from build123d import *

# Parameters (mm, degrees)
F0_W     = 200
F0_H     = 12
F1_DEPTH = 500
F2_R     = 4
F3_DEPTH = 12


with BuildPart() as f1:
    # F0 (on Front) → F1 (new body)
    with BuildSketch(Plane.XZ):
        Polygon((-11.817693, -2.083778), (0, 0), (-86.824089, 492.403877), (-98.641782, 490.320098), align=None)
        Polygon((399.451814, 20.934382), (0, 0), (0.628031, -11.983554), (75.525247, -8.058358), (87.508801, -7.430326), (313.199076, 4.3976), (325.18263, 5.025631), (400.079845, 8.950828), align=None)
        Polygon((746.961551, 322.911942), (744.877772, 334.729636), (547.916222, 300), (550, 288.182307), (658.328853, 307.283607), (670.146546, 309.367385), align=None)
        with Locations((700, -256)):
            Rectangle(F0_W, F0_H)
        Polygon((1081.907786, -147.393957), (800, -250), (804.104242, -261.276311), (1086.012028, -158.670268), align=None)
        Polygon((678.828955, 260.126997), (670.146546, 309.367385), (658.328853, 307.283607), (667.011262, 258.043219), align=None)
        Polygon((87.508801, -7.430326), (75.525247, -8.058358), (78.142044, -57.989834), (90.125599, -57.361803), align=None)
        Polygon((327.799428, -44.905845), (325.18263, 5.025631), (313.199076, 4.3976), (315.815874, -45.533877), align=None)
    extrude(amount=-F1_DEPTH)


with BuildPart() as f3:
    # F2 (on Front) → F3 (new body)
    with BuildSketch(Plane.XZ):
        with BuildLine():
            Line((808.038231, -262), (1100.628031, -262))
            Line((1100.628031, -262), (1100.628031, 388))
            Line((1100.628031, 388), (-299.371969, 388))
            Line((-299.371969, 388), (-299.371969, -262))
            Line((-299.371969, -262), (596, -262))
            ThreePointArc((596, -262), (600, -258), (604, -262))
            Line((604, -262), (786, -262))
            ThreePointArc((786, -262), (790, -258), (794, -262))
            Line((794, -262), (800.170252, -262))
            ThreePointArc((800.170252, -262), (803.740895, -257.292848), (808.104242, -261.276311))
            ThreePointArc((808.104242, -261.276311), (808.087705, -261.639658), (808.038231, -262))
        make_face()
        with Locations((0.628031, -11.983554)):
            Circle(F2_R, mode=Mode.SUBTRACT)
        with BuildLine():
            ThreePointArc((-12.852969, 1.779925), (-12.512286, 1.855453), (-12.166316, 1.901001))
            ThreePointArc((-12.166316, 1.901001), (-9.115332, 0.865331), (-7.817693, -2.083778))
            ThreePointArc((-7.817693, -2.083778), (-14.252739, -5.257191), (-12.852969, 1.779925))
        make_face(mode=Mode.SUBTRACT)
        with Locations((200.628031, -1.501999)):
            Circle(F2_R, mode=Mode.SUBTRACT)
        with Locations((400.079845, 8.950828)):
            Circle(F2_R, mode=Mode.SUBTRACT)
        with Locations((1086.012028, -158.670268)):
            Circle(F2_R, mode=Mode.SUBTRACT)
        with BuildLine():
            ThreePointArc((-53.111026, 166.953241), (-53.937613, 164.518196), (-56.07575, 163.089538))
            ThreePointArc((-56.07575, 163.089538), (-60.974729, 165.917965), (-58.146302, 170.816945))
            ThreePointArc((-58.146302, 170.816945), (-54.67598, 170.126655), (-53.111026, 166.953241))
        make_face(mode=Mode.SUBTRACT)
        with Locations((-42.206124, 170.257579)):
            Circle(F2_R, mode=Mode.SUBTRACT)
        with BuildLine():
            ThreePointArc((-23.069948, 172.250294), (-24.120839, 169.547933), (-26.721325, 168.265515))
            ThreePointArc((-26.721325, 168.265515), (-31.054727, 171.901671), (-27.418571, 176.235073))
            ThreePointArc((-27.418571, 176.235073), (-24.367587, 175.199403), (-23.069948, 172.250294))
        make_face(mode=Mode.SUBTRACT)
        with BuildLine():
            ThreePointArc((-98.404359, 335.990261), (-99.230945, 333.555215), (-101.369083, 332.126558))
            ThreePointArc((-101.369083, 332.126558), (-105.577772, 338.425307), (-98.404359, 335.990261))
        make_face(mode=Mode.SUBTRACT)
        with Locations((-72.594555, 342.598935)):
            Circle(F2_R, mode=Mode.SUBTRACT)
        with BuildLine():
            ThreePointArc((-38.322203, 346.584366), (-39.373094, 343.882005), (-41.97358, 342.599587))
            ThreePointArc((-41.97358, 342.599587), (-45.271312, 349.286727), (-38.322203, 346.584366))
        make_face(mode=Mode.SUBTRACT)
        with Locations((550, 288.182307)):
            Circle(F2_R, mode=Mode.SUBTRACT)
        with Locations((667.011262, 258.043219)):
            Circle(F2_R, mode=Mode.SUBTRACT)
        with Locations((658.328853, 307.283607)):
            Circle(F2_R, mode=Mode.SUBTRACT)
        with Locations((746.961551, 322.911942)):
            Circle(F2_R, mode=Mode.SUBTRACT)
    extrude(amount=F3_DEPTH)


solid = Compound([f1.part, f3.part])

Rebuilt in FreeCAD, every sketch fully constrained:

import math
import FreeCAD as App
import Part
import Sketcher
Q = App.Units.Quantity

doc = App.newDocument("Part")
body = doc.addObject("PartDesign::Body", "Body")
body.AllowCompound = True

sketch1 = body.newObject("Sketcher::SketchObject", "Sketch")
sketch1.AttachmentSupport = (doc.getObject("XZ_Plane"), [""])
sketch1.MapMode = "FlatFace"
sketch1.addGeometry([
    Part.LineSegment(App.Vector(-11.817693, -2.083778, 0), App.Vector(0, 0, 0)),
    Part.LineSegment(App.Vector(0, 0, 0), App.Vector(-86.824089, 492.403877, 0)),
    Part.LineSegment(App.Vector(-86.824089, 492.403877, 0), App.Vector(-98.641782, 490.320098, 0)),
    Part.LineSegment(App.Vector(-98.641782, 490.320098, 0), App.Vector(-11.817693, -2.083778, 0)),
    Part.LineSegment(App.Vector(399.451814, 20.934382, 0), App.Vector(0, 0, 0)),
    Part.LineSegment(App.Vector(0, 0, 0), App.Vector(0.628031, -11.983554, 0)),
    Part.LineSegment(App.Vector(0.628031, -11.983554, 0), App.Vector(75.525247, -8.058358, 0)),
    Part.LineSegment(App.Vector(75.525247, -8.058358, 0), App.Vector(78.142044, -57.989834, 0)),
    Part.LineSegment(App.Vector(78.142044, -57.989834, 0), App.Vector(90.125599, -57.361803, 0)),
    Part.LineSegment(App.Vector(90.125599, -57.361803, 0), App.Vector(87.508801, -7.430326, 0)),
    Part.LineSegment(App.Vector(87.508801, -7.430326, 0), App.Vector(313.199076, 4.3976, 0)),
    Part.LineSegment(App.Vector(313.199076, 4.3976, 0), App.Vector(315.815874, -45.533877, 0)),
    Part.LineSegment(App.Vector(315.815874, -45.533877, 0), App.Vector(327.799428, -44.905845, 0)),
    Part.LineSegment(App.Vector(327.799428, -44.905845, 0), App.Vector(325.18263, 5.025631, 0)),
    Part.LineSegment(App.Vector(325.18263, 5.025631, 0), App.Vector(400.079845, 8.950828, 0)),
    Part.LineSegment(App.Vector(400.079845, 8.950828, 0), App.Vector(399.451814, 20.934382, 0)),
    Part.LineSegment(App.Vector(746.961551, 322.911942, 0), App.Vector(744.877772, 334.729636, 0)),
    Part.LineSegment(App.Vector(744.877772, 334.729636, 0), App.Vector(547.916222, 300, 0)),
    Part.LineSegment(App.Vector(547.916222, 300, 0), App.Vector(550, 288.182307, 0)),
    Part.LineSegment(App.Vector(550, 288.182307, 0), App.Vector(658.328853, 307.283607, 0)),
    Part.LineSegment(App.Vector(658.328853, 307.283607, 0), App.Vector(667.011262, 258.043219, 0)),
    Part.LineSegment(App.Vector(667.011262, 258.043219, 0), App.Vector(678.828955, 260.126997, 0)),
    Part.LineSegment(App.Vector(678.828955, 260.126997, 0), App.Vector(670.146546, 309.367385, 0)),
    Part.LineSegment(App.Vector(670.146546, 309.367385, 0), App.Vector(746.961551, 322.911942, 0)),
    Part.LineSegment(App.Vector(600, -250, 0), App.Vector(600, -262, 0)),
    Part.LineSegment(App.Vector(600, -262, 0), App.Vector(800, -262, 0)),
    Part.LineSegment(App.Vector(800, -262, 0), App.Vector(800, -250, 0)),
    Part.LineSegment(App.Vector(800, -250, 0), App.Vector(600, -250, 0)),
    Part.LineSegment(App.Vector(1081.907786, -147.393957, 0), App.Vector(800, -250, 0)),
    Part.LineSegment(App.Vector(800, -250, 0), App.Vector(804.104242, -261.276311, 0)),
    Part.LineSegment(App.Vector(804.104242, -261.276311, 0), App.Vector(1086.012028, -158.670268, 0)),
    Part.LineSegment(App.Vector(1086.012028, -158.670268, 0), App.Vector(1081.907786, -147.393957, 0)),
], False)
sketch1.addConstraint([
    Sketcher.Constraint("Coincident", 0, 2, 1, 1),
    Sketcher.Constraint("Coincident", 1, 2, 2, 1),
    Sketcher.Constraint("Coincident", 2, 2, 3, 1),
    Sketcher.Constraint("Coincident", 3, 2, 0, 1),
    Sketcher.Constraint("Coincident", 4, 2, 5, 1),
    Sketcher.Constraint("Coincident", 5, 2, 6, 1),
    Sketcher.Constraint("Coincident", 6, 2, 7, 1),
    Sketcher.Constraint("Coincident", 7, 2, 8, 1),
    Sketcher.Constraint("Coincident", 8, 2, 9, 1),
    Sketcher.Constraint("Coincident", 9, 2, 10, 1),
    Sketcher.Constraint("Coincident", 10, 2, 11, 1),
    Sketcher.Constraint("Coincident", 11, 2, 12, 1),
    Sketcher.Constraint("Coincident", 12, 2, 13, 1),
    Sketcher.Constraint("Coincident", 13, 2, 14, 1),
    Sketcher.Constraint("Coincident", 14, 2, 15, 1),
    Sketcher.Constraint("Coincident", 15, 2, 4, 1),
    Sketcher.Constraint("Coincident", 16, 2, 17, 1),
    Sketcher.Constraint("Coincident", 17, 2, 18, 1),
    Sketcher.Constraint("Coincident", 18, 2, 19, 1),
    Sketcher.Constraint("Coincident", 19, 2, 20, 1),
    Sketcher.Constraint("Coincident", 20, 2, 21, 1),
    Sketcher.Constraint("Coincident", 21, 2, 22, 1),
    Sketcher.Constraint("Coincident", 22, 2, 23, 1),
    Sketcher.Constraint("Coincident", 23, 2, 16, 1),
    Sketcher.Constraint("Coincident", 24, 2, 25, 1),
    Sketcher.Constraint("Coincident", 25, 2, 26, 1),
    Sketcher.Constraint("Coincident", 26, 2, 27, 1),
    Sketcher.Constraint("Coincident", 27, 2, 24, 1),
    Sketcher.Constraint("Coincident", 28, 2, 29, 1),
    Sketcher.Constraint("Coincident", 29, 2, 30, 1),
    Sketcher.Constraint("Coincident", 30, 2, 31, 1),
    Sketcher.Constraint("Coincident", 31, 2, 28, 1),
    Sketcher.Constraint("Vertical", 24),
    Sketcher.Constraint("Horizontal", 25),
    Sketcher.Constraint("Vertical", 26),
    Sketcher.Constraint("Horizontal", 27),
    Sketcher.Constraint("Coincident", 0, 2, -1, 1),
    Sketcher.Constraint("Coincident", 4, 2, -1, 1),
    Sketcher.Constraint("Coincident", 28, 2, 26, 2),
    Sketcher.Constraint("Perpendicular", 0, 1),
    Sketcher.Constraint("Perpendicular", 1, 2),
    Sketcher.Constraint("Perpendicular", 2, 3),
    Sketcher.Constraint("Perpendicular", 4, 5),
    Sketcher.Constraint("Perpendicular", 5, 6),
    Sketcher.Constraint("Perpendicular", 6, 7),
    Sketcher.Constraint("Perpendicular", 7, 8),
    Sketcher.Constraint("Perpendicular", 8, 9),
    Sketcher.Constraint("Perpendicular", 9, 10),
    Sketcher.Constraint("Perpendicular", 10, 11),
    Sketcher.Constraint("Perpendicular", 11, 12),
    Sketcher.Constraint("Perpendicular", 12, 13),
    Sketcher.Constraint("Perpendicular", 13, 14),
    Sketcher.Constraint("Perpendicular", 14, 15),
    Sketcher.Constraint("Parallel", 3, 16),
    Sketcher.Constraint("Perpendicular", 16, 17),
    Sketcher.Constraint("Perpendicular", 17, 18),
    Sketcher.Constraint("Perpendicular", 18, 19),
    Sketcher.Constraint("Perpendicular", 19, 20),
    Sketcher.Constraint("Perpendicular", 20, 21),
    Sketcher.Constraint("Perpendicular", 21, 22),
    Sketcher.Constraint("Perpendicular", 22, 23),
    Sketcher.Constraint("Perpendicular", 28, 29),
    Sketcher.Constraint("Perpendicular", 29, 30),
    Sketcher.Constraint("Perpendicular", 30, 31),
    Sketcher.Constraint("Equal", 2, 5),
    Sketcher.Constraint("Equal", 5, 8),
    Sketcher.Constraint("Equal", 7, 9),
    Sketcher.Constraint("Equal", 9, 11),
    Sketcher.Constraint("Equal", 8, 12),
    Sketcher.Constraint("Equal", 11, 13),
    Sketcher.Constraint("Equal", 6, 14),
    Sketcher.Constraint("Equal", 15, 16),
    Sketcher.Constraint("Equal", 16, 18),
    Sketcher.Constraint("Equal", 13, 20),
    Sketcher.Constraint("Equal", 18, 21),
    Sketcher.Constraint("Equal", 21, 29),
    Sketcher.Constraint("DistanceX", 25, 1, 25, 2, 200.0),
    Sketcher.Constraint("DistanceY", 24, 2, 24, 1, 12.0),
    Sketcher.Constraint("Angle", 0, Q("9.999999 deg")),
    Sketcher.Constraint("Angle", 4, Q("-177 deg")),
    Sketcher.Constraint("Angle", 28, Q("-160 deg")),
    Sketcher.Constraint("Distance", 0, 12.0),
    Sketcher.Constraint("Distance", 1, 500.000001),
    Sketcher.Constraint("Distance", 4, 400.0),
    Sketcher.Constraint("Distance", 6, 75.000001),
    Sketcher.Constraint("Distance", 7, 49.999999),
    Sketcher.Constraint("Distance", 17, 199.999999),
    Sketcher.Constraint("Distance", 19, 110.0),
    Sketcher.Constraint("Distance", 28, 300.0),
    Sketcher.Constraint("DistanceY", -1, 1, 17, 2, 300.0),
    Sketcher.Constraint("DistanceX", -1, 1, 18, 2, 550.0),
    Sketcher.Constraint("DistanceX", -1, 1, 24, 2, 600.0),
    Sketcher.Constraint("DistanceY", 24, 2, -1, 1, 262.0),
])
pad1 = body.newObject("PartDesign::Pad", "Pad")
pad1.Profile = sketch1
pad1.Length = 500
pad1.Reversed = True
body2 = doc.addObject("PartDesign::Body", "Body001")

sketch2 = body2.newObject("Sketcher::SketchObject", "Sketch001")
sketch2.AttachmentSupport = (doc.getObject("XZ_Plane001"), [""])
sketch2.MapMode = "FlatFace"
sketch2.addGeometry([
    Part.LineSegment(App.Vector(808.038231, -262, 0), App.Vector(1100.628031, -262, 0)),
    Part.LineSegment(App.Vector(1100.628031, -262, 0), App.Vector(1100.628031, 388, 0)),
    Part.LineSegment(App.Vector(1100.628031, 388, 0), App.Vector(-299.371969, 388, 0)),
    Part.LineSegment(App.Vector(-299.371969, 388, 0), App.Vector(-299.371969, -262, 0)),
    Part.LineSegment(App.Vector(-299.371969, -262, 0), App.Vector(596, -262, 0)),
    Part.ArcOfCircle(Part.Circle(App.Vector(600, -262, 0), App.Vector(0, 0, 1), 4), math.radians(0), math.radians(180)),
    Part.LineSegment(App.Vector(604, -262, 0), App.Vector(786, -262, 0)),
    Part.ArcOfCircle(Part.Circle(App.Vector(790, -262, 0), App.Vector(0, 0, 1), 4), math.radians(0), math.radians(180)),
    Part.LineSegment(App.Vector(794, -262, 0), App.Vector(800.170252, -262, 0)),
    Part.ArcOfCircle(Part.Circle(App.Vector(804.104242, -261.276311, 0), App.Vector(0, 0, 1), 4), math.radians(0.000005), math.radians(190.423477)),
    Part.ArcOfCircle(Part.Circle(App.Vector(804.10427, -261.27631, 0), App.Vector(0, 0, 1), 3.999972), math.radians(-10.423567), math.radians(-0.000011)),
    Part.Circle(App.Vector(0.628031, -11.983554, 0), App.Vector(0, 0, 1), 4),
    Part.ArcOfCircle(Part.Circle(App.Vector(-11.817693, -2.083778, 0), App.Vector(0, 0, 1), 4), math.radians(105), math.radians(360.000002)),
    Part.ArcOfCircle(Part.Circle(App.Vector(-11.817695, -2.08375, 0), App.Vector(0, 0, 1), 3.999973), math.radians(95.000011), math.radians(105.000078)),
    Part.ArcOfCircle(Part.Circle(App.Vector(-11.817694, -2.083778, 0), App.Vector(0, 0, 1), 4.000001), math.radians(0.000007), math.radians(94.999991)),
    Part.Circle(App.Vector(200.628031, -1.501999, 0), App.Vector(0, 0, 1), 4),
    Part.Circle(App.Vector(400.079845, 8.950828, 0), App.Vector(0, 0, 1), 4),
    Part.Circle(App.Vector(1086.012028, -158.670268, 0), App.Vector(0, 0, 1), 4),
    Part.ArcOfCircle(Part.Circle(App.Vector(-57.111026, 166.953242, 0), App.Vector(0, 0, 1), 4), math.radians(-0.000014), math.radians(105.000002)),
    Part.ArcOfCircle(Part.Circle(App.Vector(-57.111028, 166.953243, 0), App.Vector(0, 0, 1), 4.000002), math.radians(-74.999981), math.radians(-0.000026)),
    Part.ArcOfCircle(Part.Circle(App.Vector(-57.111026, 166.953242, 0), App.Vector(0, 0, 1), 4), math.radians(105.000002), math.radians(284.999992)),
    Part.Circle(App.Vector(-42.206124, 170.257579, 0), App.Vector(0, 0, 1), 4),
    Part.ArcOfCircle(Part.Circle(App.Vector(-27.069949, 172.250294, 0), App.Vector(0, 0, 1), 4.000001), math.radians(0.000007), math.radians(94.999991)),
    Part.ArcOfCircle(Part.Circle(App.Vector(-27.069949, 172.250295, 0), App.Vector(0, 0, 1), 4.000001), math.radians(-84.999989), math.radians(-0.000007)),
    Part.ArcOfCircle(Part.Circle(App.Vector(-27.069948, 172.250294, 0), App.Vector(0, 0, 1), 4), math.radians(95), math.radians(275)),
    Part.ArcOfCircle(Part.Circle(App.Vector(-102.404359, 335.990261, 0), App.Vector(0, 0, 1), 4), math.radians(-0.000003), math.radians(284.999996)),
    Part.ArcOfCircle(Part.Circle(App.Vector(-102.404356, 335.990259, 0), App.Vector(0, 0, 1), 3.999997), math.radians(-75.00004), math.radians(0.000033)),
    Part.Circle(App.Vector(-72.594555, 342.598935, 0), App.Vector(0, 0, 1), 4),
    Part.ArcOfCircle(Part.Circle(App.Vector(-42.322203, 346.584366, 0), App.Vector(0, 0, 1), 4), math.radians(0.000003), math.radians(275)),
    Part.ArcOfCircle(Part.Circle(App.Vector(-42.322204, 346.584367, 0), App.Vector(0, 0, 1), 4.000001), math.radians(-84.999989), math.radians(-0.000007)),
    Part.Circle(App.Vector(667.011262, 258.043219, 0), App.Vector(0, 0, 1), 4),
    Part.Circle(App.Vector(550, 288.182307, 0), App.Vector(0, 0, 1), 4),
    Part.Circle(App.Vector(658.328853, 307.283607, 0), App.Vector(0, 0, 1), 4),
    Part.Circle(App.Vector(746.961551, 322.911942, 0), App.Vector(0, 0, 1), 4),
], False)
sketch2.addConstraint([
    Sketcher.Constraint("Coincident", 0, 2, 1, 1),
    Sketcher.Constraint("Coincident", 1, 2, 2, 1),
    Sketcher.Constraint("Coincident", 2, 2, 3, 1),
    Sketcher.Constraint("Coincident", 3, 2, 4, 1),
    Sketcher.Constraint("Coincident", 4, 2, 5, 2),
    Sketcher.Constraint("Coincident", 5, 1, 6, 1),
    Sketcher.Constraint("Coincident", 6, 2, 7, 2),
    Sketcher.Constraint("Coincident", 7, 1, 8, 1),
    Sketcher.Constraint("Coincident", 8, 2, 9, 2),
    Sketcher.Constraint("Coincident", 9, 1, 10, 2),
    Sketcher.Constraint("Coincident", 10, 1, 0, 1),
    Sketcher.Constraint("Coincident", 12, 1, 13, 2),
    Sketcher.Constraint("Coincident", 13, 1, 14, 2),
    Sketcher.Constraint("Coincident", 14, 1, 12, 2),
    Sketcher.Constraint("Coincident", 18, 1, 19, 2),
    Sketcher.Constraint("Coincident", 19, 1, 20, 2),
    Sketcher.Constraint("Coincident", 20, 1, 18, 2),
    Sketcher.Constraint("Coincident", 22, 1, 23, 2),
    Sketcher.Constraint("Coincident", 23, 1, 24, 2),
    Sketcher.Constraint("Coincident", 24, 1, 22, 2),
    Sketcher.Constraint("Coincident", 25, 1, 26, 2),
    Sketcher.Constraint("Coincident", 26, 1, 25, 2),
    Sketcher.Constraint("Coincident", 28, 1, 29, 2),
    Sketcher.Constraint("Coincident", 29, 1, 28, 2),
    Sketcher.Constraint("Horizontal", 0),
    Sketcher.Constraint("Vertical", 1),
    Sketcher.Constraint("Horizontal", 2),
    Sketcher.Constraint("Vertical", 3),
    Sketcher.Constraint("Horizontal", 4),
    Sketcher.Constraint("Horizontal", 6),
    Sketcher.Constraint("Horizontal", 8),
    Sketcher.Constraint("Coincident", 14, 3, 12, 3),
    Sketcher.Constraint("Coincident", 19, 3, 18, 3),
    Sketcher.Constraint("Coincident", 23, 3, 22, 3),
    Sketcher.Constraint("Diameter", 11, 8.0),
    Sketcher.Constraint("Diameter", 15, 8.0),
    Sketcher.Constraint("Diameter", 16, 8.0),
    Sketcher.Constraint("Diameter", 17, 8.0),
    Sketcher.Constraint("Diameter", 21, 8.0),
    Sketcher.Constraint("Diameter", 27, 8.0),
    Sketcher.Constraint("Diameter", 30, 8.0),
    Sketcher.Constraint("Diameter", 31, 8.0),
    Sketcher.Constraint("Diameter", 32, 8.0),
    Sketcher.Constraint("Diameter", 33, 8.0),
    Sketcher.Constraint("Radius", 5, 4.0),
    Sketcher.Constraint("Radius", 7, 4.0),
    Sketcher.Constraint("Radius", 9, 4.0),
    Sketcher.Constraint("Radius", 12, 4.0),
    Sketcher.Constraint("Radius", 18, 4.0),
    Sketcher.Constraint("Radius", 22, 4.000001),
    Sketcher.Constraint("Radius", 25, 4.0),
    Sketcher.Constraint("Radius", 28, 4.0),
    Sketcher.Constraint("Radius", 29, 4.000001),
    Sketcher.Constraint("DistanceX", 2, 2, 2, 1, 1400.0),
    Sketcher.Constraint("DistanceX", 6, 1, 6, 2, 182.0),
    Sketcher.Constraint("DistanceY", 1, 1, 1, 2, 650.0),
    Sketcher.Constraint("DistanceY", 3, 2, 3, 1, 650.0),
    Sketcher.Constraint("DistanceX", -1, 1, 5, 3, 600.0),
    Sketcher.Constraint("DistanceY", 5, 3, -1, 1, 262.0),
    Sketcher.Constraint("DistanceY", 7, 3, -1, 1, 262.0),
    Sketcher.Constraint("DistanceX", -1, 1, 31, 3, 550.0),
    Sketcher.Constraint("DistanceY", 0, 2, -1, 1, 262.0),
    Sketcher.Constraint("DistanceY", 5, 1, -1, 1, 262.0),
    Sketcher.Constraint("DistanceY", 7, 1, -1, 1, 262.0),
    Sketcher.Constraint("DistanceX", 11, 3, 15, 3, 200.0),
    Sketcher.Constraint("DistanceX", 3, 2, 11, 3, 300.0),
    Sketcher.Constraint("DistanceX", 13, 3, 14, 1, 4.000002),
    Sketcher.Constraint("DistanceX", 20, 3, 18, 1, 4.0),
    Sketcher.Constraint("DistanceX", 24, 3, 22, 1, 4.0),
    Sketcher.Constraint("DistanceX", 0, 1, 0, 2, 292.5898),
    Sketcher.Constraint("DistanceY", 15, 3, -1, 1, 1.501999),
    Sketcher.Constraint("DistanceY", -1, 1, 13, 1, 1.901001),
    Sketcher.Constraint("Radius", 10, 3.999972),
    Sketcher.Constraint("Radius", 26, 3.999997),
    Sketcher.Constraint("DistanceX", 12, 1, 11, 3, 13.481),
    Sketcher.Constraint("DistanceX", 4, 1, 4, 2, 895.371969),
    Sketcher.Constraint("DistanceX", 18, 3, 21, 3, 14.904902),
    Sketcher.Constraint("DistanceX", 26, 3, 27, 3, 29.809801),
    Sketcher.Constraint("DistanceY", 31, 3, 32, 3, 19.1013),
    Sketcher.Constraint("DistanceX", 32, 3, 33, 3, 88.632698),
    Sketcher.Constraint("DistanceX", 21, 3, 23, 1, 15.484799),
    Sketcher.Constraint("DistanceY", 26, 1, 26, 3, 3.863701),
    Sketcher.Constraint("DistanceX", 8, 1, 8, 2, 6.170252),
    Sketcher.Constraint("DistanceX", -1, 1, 9, 3, 804.104242),
    Sketcher.Constraint("DistanceY", 12, 3, -1, 1, 2.083778),
    Sketcher.Constraint("DistanceX", -1, 1, 17, 3, 1086.012028),
    Sketcher.Constraint("DistanceY", 17, 3, -1, 1, 158.670268),
    Sketcher.Constraint("DistanceY", -1, 1, 18, 3, 166.953242),
    Sketcher.Constraint("DistanceY", -1, 1, 21, 3, 170.257579),
    Sketcher.Constraint("DistanceX", 22, 3, -1, 1, 27.069949),
    Sketcher.Constraint("DistanceX", 25, 3, -1, 1, 102.404359),
    Sketcher.Constraint("DistanceY", -1, 1, 25, 3, 335.990261),
    Sketcher.Constraint("DistanceX", -1, 1, 30, 3, 667.011262),
    Sketcher.Constraint("DistanceY", -1, 1, 30, 3, 258.043219),
    Sketcher.Constraint("DistanceX", -1, 1, 33, 3, 746.961551),
    Sketcher.Constraint("DistanceY", -1, 1, 33, 3, 322.911942),
    Sketcher.Constraint("DistanceY", 9, 1, -1, 1, 261.276311),
    Sketcher.Constraint("DistanceY", 14, 1, -1, 1, 2.083778),
    Sketcher.Constraint("DistanceY", -1, 1, 18, 1, 166.953241),
    Sketcher.Constraint("DistanceX", 19, 1, -1, 1, 56.07575),
    Sketcher.Constraint("DistanceY", -1, 1, 19, 1, 163.089538),
    Sketcher.Constraint("DistanceX", 24, 1, -1, 1, 27.418571),
    Sketcher.Constraint("DistanceY", -1, 1, 25, 1, 335.990261),
    Sketcher.Constraint("DistanceX", 29, 1, -1, 1, 41.97358),
    Sketcher.Constraint("DistanceY", 5, 3, 16, 3, 270.950828),
    Sketcher.Constraint("DistanceY", 11, 3, 16, 3, 20.934382),
    Sketcher.Constraint("DistanceX", 14, 3, 16, 3, 411.897539),
    Sketcher.Constraint("DistanceX", 18, 3, 13, 3, 45.293331),
    Sketcher.Constraint("DistanceY", 20, 3, 22, 3, 5.297052),
    Sketcher.Constraint("DistanceY", 23, 3, 27, 3, 170.34864),
    Sketcher.Constraint("DistanceX", 27, 3, 28, 3, 30.272352),
    Sketcher.Constraint("DistanceY", 27, 3, 28, 3, 3.985431),
    Sketcher.Constraint("DistanceY", 16, 3, 31, 3, 279.231479),
    Sketcher.Constraint("DistanceY", 23, 1, 22, 1, 3.984779),
    Sketcher.Constraint("DistanceY", 27, 3, 28, 1, 3.985431),
    Sketcher.Constraint("DistanceX", 20, 1, -1, 1, 58.146302),
])
pad2 = body2.newObject("PartDesign::Pad", "Pad001")
pad2.Profile = sketch2
pad2.Length = 12

doc.recompute()
